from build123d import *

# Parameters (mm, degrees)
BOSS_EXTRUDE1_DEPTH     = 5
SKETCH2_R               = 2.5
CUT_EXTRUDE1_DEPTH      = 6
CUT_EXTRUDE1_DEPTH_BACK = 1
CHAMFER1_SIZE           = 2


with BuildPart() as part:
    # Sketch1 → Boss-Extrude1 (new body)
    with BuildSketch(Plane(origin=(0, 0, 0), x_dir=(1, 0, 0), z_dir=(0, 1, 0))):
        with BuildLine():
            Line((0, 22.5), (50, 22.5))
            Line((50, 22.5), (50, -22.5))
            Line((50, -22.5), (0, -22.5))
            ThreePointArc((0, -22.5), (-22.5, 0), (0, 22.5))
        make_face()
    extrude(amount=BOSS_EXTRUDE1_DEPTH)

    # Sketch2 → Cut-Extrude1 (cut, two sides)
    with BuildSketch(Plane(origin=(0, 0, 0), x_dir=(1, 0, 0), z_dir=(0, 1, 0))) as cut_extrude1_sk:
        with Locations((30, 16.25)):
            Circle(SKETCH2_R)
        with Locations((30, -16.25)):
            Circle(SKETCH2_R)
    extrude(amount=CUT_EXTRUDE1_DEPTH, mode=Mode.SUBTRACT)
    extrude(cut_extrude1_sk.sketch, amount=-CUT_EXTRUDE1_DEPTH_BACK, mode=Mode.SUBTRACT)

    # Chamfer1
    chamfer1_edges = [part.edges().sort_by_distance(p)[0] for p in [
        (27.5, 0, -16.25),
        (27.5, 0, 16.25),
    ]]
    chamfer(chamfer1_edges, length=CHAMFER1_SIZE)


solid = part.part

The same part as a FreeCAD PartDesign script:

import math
import FreeCAD as App
import Part
import Sketcher
from FreeCAD import Vector
Q = App.Units.Quantity


def edges_at(feature, points):
    """Names of the edges that pass closest to the given points."""
    edges = feature.Shape.Edges
    near = lambda p: min(range(len(edges)), key=lambda i: edges[i].distToShape(Part.Vertex(*p))[0])
    return sorted({f"Edge{near(p) + 1}" for p in points})

doc = App.newDocument("Part")
body = doc.addObject("PartDesign::Body", "Body")

# Sketch on XZ plane
sketch1 = body.newObject("Sketcher::SketchObject", "Sketch")
sketch1.AttachmentSupport = (doc.getObject("XZ_Plane"), [""])
sketch1.MapMode = "FlatFace"
sketch1.addGeometry([
    Part.LineSegment(Vector(50, -22, 0), Vector(0, -22, 0)),
    Part.ArcOfCircle(Part.Circle(Vector(0, 0, 0), Vector(0, 0, 1), 22), math.radians(90), math.radians(270)),
    Part.LineSegment(Vector(0, 22, 0), Vector(50, 22, 0)),
    Part.LineSegment(Vector(50, 22, 0), Vector(50, -22, 0)),
], False)
sketch1.addConstraint([
    Sketcher.Constraint("Tangent", 0, 2, 1, 2),
    Sketcher.Constraint("Tangent", 1, 1, 2, 1),
    Sketcher.Constraint("Coincident", 2, 2, 3, 1),
    Sketcher.Constraint("Coincident", 3, 2, 0, 1),
    Sketcher.Constraint("Horizontal", 0),
    Sketcher.Constraint("Horizontal", 2),
    Sketcher.Constraint("Vertical", 3),
    Sketcher.Constraint("Coincident", 1, 3, -1, 1),
    Sketcher.Constraint("Radius", 1, Q("22.5 mm")),
    Sketcher.Constraint("DistanceX", 0, 2, 0, 1, Q("50 mm")),
])
pad1 = body.newObject("PartDesign::Pad", "Pad")
pad1.Profile = sketch1
pad1.Length = 5
pad1.Reversed = True

# Sketch on XZ plane
sketch2 = body.newObject("Sketcher::SketchObject", "Sketch001")
sketch2.AttachmentSupport = (doc.getObject("XZ_Plane"), [""])
sketch2.MapMode = "FlatFace"
sketch2.addGeometry([
    Part.Circle(Vector(30, -16.2, 0), Vector(0, 0, 1), 2.5),
    Part.Circle(Vector(30, 16.2, 0), Vector(0, 0, 1), 2.5),
], False)
sketch2.addConstraint([
    Sketcher.Constraint("Equal", 0, 1),
    Sketcher.Constraint("Symmetric", 0, 3, 1, 3, -1),
    Sketcher.Constraint("Diameter", 0, Q("5 mm")),
    Sketcher.Constraint("DistanceX", -1, 1, 0, 3, Q("30 mm")),
    Sketcher.Constraint("DistanceY", 0, 3, 1, 3, Q("32.5 mm")),
])
pocket1 = body.newObject("PartDesign::Pocket", "Pocket")
pocket1.Profile = sketch2
pocket1.Type = "ThroughAll"
pocket1.Midplane = True
doc.recompute()

chamfer = body.newObject("PartDesign::Chamfer", "Chamfer")
chamfer.Base = (pocket1, edges_at(pocket1, [(27.5, 0, -16.25), (27.5, 0, 16.25)]))
chamfer.Size = 2

doc.recompute()
